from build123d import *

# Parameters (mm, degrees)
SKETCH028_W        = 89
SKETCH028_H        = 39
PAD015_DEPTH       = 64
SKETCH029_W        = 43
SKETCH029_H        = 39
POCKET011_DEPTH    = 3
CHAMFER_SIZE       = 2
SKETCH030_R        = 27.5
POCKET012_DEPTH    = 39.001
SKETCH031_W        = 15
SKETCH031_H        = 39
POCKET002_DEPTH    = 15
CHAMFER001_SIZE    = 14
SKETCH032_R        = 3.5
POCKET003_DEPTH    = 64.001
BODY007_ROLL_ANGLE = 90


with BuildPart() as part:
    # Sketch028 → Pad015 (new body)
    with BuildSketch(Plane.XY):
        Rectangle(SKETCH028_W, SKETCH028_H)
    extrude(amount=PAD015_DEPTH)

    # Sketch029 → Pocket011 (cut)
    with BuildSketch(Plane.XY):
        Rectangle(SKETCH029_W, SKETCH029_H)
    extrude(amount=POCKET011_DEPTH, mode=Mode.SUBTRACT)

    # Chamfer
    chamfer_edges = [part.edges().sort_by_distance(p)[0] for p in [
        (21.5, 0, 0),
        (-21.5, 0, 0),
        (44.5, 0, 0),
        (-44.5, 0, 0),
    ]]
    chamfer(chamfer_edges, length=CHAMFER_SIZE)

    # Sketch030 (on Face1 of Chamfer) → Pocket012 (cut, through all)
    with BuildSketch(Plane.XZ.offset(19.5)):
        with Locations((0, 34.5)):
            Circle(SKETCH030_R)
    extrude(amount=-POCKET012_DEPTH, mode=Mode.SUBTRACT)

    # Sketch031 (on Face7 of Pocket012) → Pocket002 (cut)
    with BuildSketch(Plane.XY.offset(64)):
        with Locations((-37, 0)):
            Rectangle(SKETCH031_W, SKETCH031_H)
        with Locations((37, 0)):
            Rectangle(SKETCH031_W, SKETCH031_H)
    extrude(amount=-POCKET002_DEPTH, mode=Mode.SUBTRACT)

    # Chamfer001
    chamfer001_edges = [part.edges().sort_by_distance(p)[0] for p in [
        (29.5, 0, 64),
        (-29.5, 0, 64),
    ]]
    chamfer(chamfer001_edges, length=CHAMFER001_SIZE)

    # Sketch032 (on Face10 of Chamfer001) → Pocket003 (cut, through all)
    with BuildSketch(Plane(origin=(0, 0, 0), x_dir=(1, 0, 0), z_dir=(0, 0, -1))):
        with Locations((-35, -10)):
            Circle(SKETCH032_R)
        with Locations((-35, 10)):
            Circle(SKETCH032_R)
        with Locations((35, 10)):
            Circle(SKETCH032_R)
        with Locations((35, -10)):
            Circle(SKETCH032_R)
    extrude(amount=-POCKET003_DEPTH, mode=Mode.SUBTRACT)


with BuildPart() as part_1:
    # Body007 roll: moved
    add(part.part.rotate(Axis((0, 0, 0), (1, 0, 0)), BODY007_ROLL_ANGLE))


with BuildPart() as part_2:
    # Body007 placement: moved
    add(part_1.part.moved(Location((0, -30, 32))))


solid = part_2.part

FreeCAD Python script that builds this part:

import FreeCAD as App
import Part
import Sketcher
Q = App.Units.Quantity


def edges_at(feature, points):
    """Names of the edges that pass closest to the given points."""
    edges = feature.Shape.Edges
    near = lambda p: min(range(len(edges)), key=lambda i: edges[i].distToShape(Part.Vertex(*p))[0])
    return sorted({f"Edge{near(p) + 1}" for p in points})

doc = App.newDocument("Part")
params = doc.addObject("Spreadsheet::Sheet", "Params")
for row, (alias, value) in enumerate([
    ("sketch1_width", "89 mm"),
    ("sketch1_height", "39 mm"),
    ("pad1_length", "64 mm"),
    ("sketch2_width", "43 mm"),
    ("sketch2_height", "39 mm"),
    ("pocket1_length", "3 mm"),
    ("chamfer_size", "2 mm"),
    ("sketch3_diameter", "55 mm"),
    ("sketch4_width", "15 mm"),
    ("sketch4_height", "39 mm"),
    ("pocket3_length", "15 mm"),
    ("chamfer2_size", "14 mm"),
    ("sketch5_diameter", "7 mm"),
], start=1):
    params.set(f"A{row}", alias)
    params.set(f"B{row}", "=" + value)
    params.setAlias(f"B{row}", alias)

body = doc.addObject("PartDesign::Body", "Body")

# Sketch on XY plane
sketch1 = body.newObject("Sketcher::SketchObject", "Sketch")
sketch1.AttachmentSupport = (doc.getObject("XY_Plane"), [""])
sketch1.MapMode = "FlatFace"
sketch1.addGeometry([
    Part.LineSegment(App.Vector(-44, 20, 0), App.Vector(-44, -20, 0)),
    Part.LineSegment(App.Vector(-44, -20, 0), App.Vector(44, -20, 0)),
    Part.LineSegment(App.Vector(44, -20, 0), App.Vector(44, 20, 0)),
    Part.LineSegment(App.Vector(44, 20, 0), App.Vector(-44, 20, 0)),
], False)
sketch1.addConstraint([
    Sketcher.Constraint("Coincident", 0, 2, 1, 1),
    Sketcher.Constraint("Coincident", 1, 2, 2, 1),
    Sketcher.Constraint("Coincident", 2, 2, 3, 1),
    Sketcher.Constraint("Coincident", 3, 2, 0, 1),
    Sketcher.Constraint("Vertical", 0),
    Sketcher.Constraint("Horizontal", 1),
    Sketcher.Constraint("Vertical", 2),
    Sketcher.Constraint("Horizontal", 3),
    Sketcher.Constraint("Symmetric", 0, 2, 2, 2, -1, 1),
    Sketcher.Constraint("DistanceX", 1, 1, 1, 2, Q("89 mm")),
    Sketcher.Constraint("DistanceY", 0, 2, 0, 1, Q("39 mm")),
])
sketch1.setExpression("Constraints[9]", "Params.sketch1_width")
sketch1.setExpression("Constraints[10]", "Params.sketch1_height")
pad1 = body.newObject("PartDesign::Pad", "Pad")
pad1.Profile = sketch1
pad1.setExpression("Length", "Params.pad1_length")

# Sketch on XY plane
sketch2 = body.newObject("Sketcher::SketchObject", "Sketch001")
sketch2.AttachmentSupport = (doc.getObject("XY_Plane"), [""])
sketch2.MapMode = "FlatFace"
sketch2.addGeometry([
    Part.LineSegment(App.Vector(-22, 20, 0), App.Vector(-22, -20, 0)),
    Part.LineSegment(App.Vector(-22, -20, 0), App.Vector(22, -20, 0)),
    Part.LineSegment(App.Vector(22, -20, 0), App.Vector(22, 20, 0)),
    Part.LineSegment(App.Vector(22, 20, 0), App.Vector(-22, 20, 0)),
], False)
sketch2.addConstraint([
    Sketcher.Constraint("Coincident", 0, 2, 1, 1),
    Sketcher.Constraint("Coincident", 1, 2, 2, 1),
    Sketcher.Constraint("Coincident", 2, 2, 3, 1),
    Sketcher.Constraint("Coincident", 3, 2, 0, 1),
    Sketcher.Constraint("Vertical", 0),
    Sketcher.Constraint("Horizontal", 1),
    Sketcher.Constraint("Vertical", 2),
    Sketcher.Constraint("Horizontal", 3),
    Sketcher.Constraint("Symmetric", 0, 2, 2, 2, -1, 1),
    Sketcher.Constraint("DistanceX", 1, 1, 1, 2, Q("43 mm")),
    Sketcher.Constraint("DistanceY", 0, 2, 0, 1, Q("39 mm")),
])
sketch2.setExpression("Constraints[9]", "Params.sketch2_width")
sketch2.setExpression("Constraints[10]", "Params.sketch2_height")
pocket1 = body.newObject("PartDesign::Pocket", "Pocket")
pocket1.Profile = sketch2
pocket1.setExpression("Length", "Params.pocket1_length")
pocket1.Reversed = True
doc.recompute()

chamfer = body.newObject("PartDesign::Chamfer", "Chamfer")
chamfer.Base = (pocket1, edges_at(pocket1, [
    (21.5, 0, 0),
    (-21.5, 0, 0),
    (44.5, 0, 0),
    (-44.5, 0, 0),
]))
chamfer.setExpression("Size", "Params.chamfer_size")

# Sketch on XZ plane
sketch3 = body.newObject("Sketcher::SketchObject", "Sketch002")
sketch3.AttachmentSupport = (doc.getObject("XZ_Plane"), [""])
sketch3.MapMode = "FlatFace"
sketch3.AttachmentOffset = App.Placement(App.Vector(0, 0, 19.5), App.Rotation())
sketch3.addGeometry(Part.Circle(App.Vector(0, 34, 0), App.Vector(0, 0, 1), 28), False)
sketch3.addConstraint([
    Sketcher.Constraint("PointOnObject", 0, 3, -2),
    Sketcher.Constraint("Diameter", 0, Q("55 mm")),
    Sketcher.Constraint("DistanceY", -1, 1, 0, 3, Q("34.5 mm")),
])
sketch3.setExpression("Constraints[1]", "Params.sketch3_diameter")
pocket2 = body.newObject("PartDesign::Pocket", "Pocket001")
pocket2.Profile = sketch3
pocket2.Type = "ThroughAll"

# Sketch on XY plane
sketch4 = body.newObject("Sketcher::SketchObject", "Sketch003")
sketch4.AttachmentSupport = (doc.getObject("XY_Plane"), [""])
sketch4.MapMode = "FlatFace"
sketch4.AttachmentOffset = App.Placement(App.Vector(0, 0, 64), App.Rotation())
sketch4.addGeometry([
    Part.LineSegment(App.Vector(-44, 20, 0), App.Vector(-44, -20, 0)),  # 0
    Part.LineSegment(App.Vector(-44, -20, 0), App.Vector(-30, -20, 0)),  # 1
    Part.LineSegment(App.Vector(-30, -20, 0), App.Vector(-30, 20, 0)),  # 2
    Part.LineSegment(App.Vector(-30, 20, 0), App.Vector(-44, 20, 0)),  # 3
    Part.LineSegment(App.Vector(30, 20, 0), App.Vector(30, -20, 0)),  # 4
    Part.LineSegment(App.Vector(30, -20, 0), App.Vector(44, -20, 0)),  # 5
    Part.LineSegment(App.Vector(44, -20, 0), App.Vector(44, 20, 0)),  # 6
    Part.LineSegment(App.Vector(44, 20, 0), App.Vector(30, 20, 0)),  # 7
], False)
sketch4.addConstraint([
    Sketcher.Constraint("Coincident", 0, 2, 1, 1),
    Sketcher.Constraint("Coincident", 1, 2, 2, 1),
    Sketcher.Constraint("Coincident", 2, 2, 3, 1),
    Sketcher.Constraint("Coincident", 3, 2, 0, 1),
    Sketcher.Constraint("Coincident", 4, 2, 5, 1),
    Sketcher.Constraint("Coincident", 5, 2, 6, 1),
    Sketcher.Constraint("Coincident", 6, 2, 7, 1),
    Sketcher.Constraint("Coincident", 7, 2, 4, 1),
    Sketcher.Constraint("Vertical", 0),
    Sketcher.Constraint("Horizontal", 1),
    Sketcher.Constraint("Vertical", 2),
    Sketcher.Constraint("Horizontal", 3),
    Sketcher.Constraint("Vertical", 4),
    Sketcher.Constraint("Horizontal", 5),
    Sketcher.Constraint("Vertical", 6),
    Sketcher.Constraint("Horizontal", 7),
    Sketcher.Constraint("Symmetric", 2, 2, 4, 2, -1, 1),
    Sketcher.Constraint("Symmetric", 0, 2, 6, 2, -1, 1),
    Sketcher.Constraint("Horizontal", 1, 2, 4, 2),
    Sketcher.Constraint("DistanceX", 1, 1, 1, 2, Q("15 mm")),
    Sketcher.Constraint("DistanceY", 0, 2, 0, 1, Q("39 mm")),
    Sketcher.Constraint("DistanceX", 1, 2, 4, 2, Q("59 mm")),
])
sketch4.setExpression("Constraints[19]", "Params.sketch4_width")
sketch4.setExpression("Constraints[20]", "Params.sketch4_height")
pocket3 = body.newObject("PartDesign::Pocket", "Pocket002")
pocket3.Profile = sketch4
pocket3.setExpression("Length", "Params.pocket3_length")
doc.recompute()

chamfer2 = body.newObject("PartDesign::Chamfer", "Chamfer001")
chamfer2.Base = (pocket3, edges_at(pocket3, [(29.5, 0, 64), (-29.5, 0, 64)]))
chamfer2.setExpression("Size", "Params.chamfer2_size")

# Sketch on XY plane
sketch5 = body.newObject("Sketcher::SketchObject", "Sketch004")
sketch5.AttachmentSupport = (doc.getObject("XY_Plane"), [""])
sketch5.MapMode = "FlatFace"
sketch5.addGeometry([
    Part.Circle(App.Vector(-35, 10, 0), App.Vector(0, 0, 1), 3.5),
    Part.Circle(App.Vector(-35, -10, 0), App.Vector(0, 0, 1), 3.5),
    Part.Circle(App.Vector(35, -10, 0), App.Vector(0, 0, 1), 3.5),
    Part.Circle(App.Vector(35, 10, 0), App.Vector(0, 0, 1), 3.5),
], False)
sketch5.addConstraint([
    Sketcher.Constraint("Equal", 0, 1),
    Sketcher.Constraint("Equal", 1, 2),
    Sketcher.Constraint("Equal", 2, 3),
    Sketcher.Constraint("Symmetric", 0, 3, 2, 3, -1, 1),
    Sketcher.Constraint("Symmetric", 1, 3, 3, 3, -1, 1),
    Sketcher.Constraint("Symmetric", 1, 3, 2, 3, -2),
    Sketcher.Constraint("Diameter", 0, Q("7 mm")),
    Sketcher.Constraint("DistanceX", 0, 3, -1, 1, Q("35 mm")),
    Sketcher.Constraint("DistanceY", -1, 1, 0, 3, Q("10 mm")),
])
sketch5.setExpression("Constraints[6]", "Params.sketch5_diameter")
pocket4 = body.newObject("PartDesign::Pocket", "Pocket003")
pocket4.Profile = sketch5
pocket4.Type = "ThroughAll"
pocket4.Reversed = True
body2 = doc.addObject("PartDesign::Body", "Body001")
doc.recompute()

body.Placement = App.Placement(App.Vector(0, 0, 0), App.Rotation(App.Vector(1, 0, 0), 90))
boolean = body2.newObject("PartDesign::Boolean", "Boolean")
boolean.Type = "Fuse"
boolean.addObjects([body])
body3 = doc.addObject("PartDesign::Body", "Body002")
doc.recompute()

body2.Placement = App.Placement(App.Vector(0, -30, 32), App.Rotation(App.Vector(0, 0, 1), 0))
boolean2 = body3.newObject("PartDesign::Boolean", "Boolean001")
boolean2.Type = "Fuse"
boolean2.addObjects([body2])

doc.recompute()
